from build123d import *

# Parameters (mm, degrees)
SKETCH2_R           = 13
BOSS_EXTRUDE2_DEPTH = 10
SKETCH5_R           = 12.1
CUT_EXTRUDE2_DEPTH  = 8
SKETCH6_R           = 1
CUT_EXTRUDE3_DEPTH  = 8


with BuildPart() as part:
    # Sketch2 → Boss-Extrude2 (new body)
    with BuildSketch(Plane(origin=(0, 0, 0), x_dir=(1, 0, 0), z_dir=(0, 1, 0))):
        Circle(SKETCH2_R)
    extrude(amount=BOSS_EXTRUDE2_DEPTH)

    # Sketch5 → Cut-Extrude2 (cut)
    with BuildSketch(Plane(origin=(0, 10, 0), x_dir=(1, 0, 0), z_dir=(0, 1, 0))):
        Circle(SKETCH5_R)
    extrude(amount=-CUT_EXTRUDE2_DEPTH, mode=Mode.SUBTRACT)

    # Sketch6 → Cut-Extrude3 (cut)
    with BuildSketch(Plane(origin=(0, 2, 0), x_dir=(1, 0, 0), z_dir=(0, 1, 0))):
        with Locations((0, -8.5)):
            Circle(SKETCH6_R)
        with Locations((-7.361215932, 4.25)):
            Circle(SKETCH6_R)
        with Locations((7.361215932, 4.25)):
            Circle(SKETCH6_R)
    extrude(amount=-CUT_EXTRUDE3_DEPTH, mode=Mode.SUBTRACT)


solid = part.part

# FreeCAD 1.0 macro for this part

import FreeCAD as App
import Part
import Sketcher

V = App.Vector
Q = App.Units.Quantity

doc = App.newDocument("Part")
body = doc.addObject("PartDesign::Body", "Body")

# Sketch on XZ plane
sketch1 = doc.addObject("Sketcher::SketchObject", "Sketch")
body.addObject(sketch1)
sketch1.AttachmentSupport = (doc.XZ_Plane, [""])
sketch1.MapMode = "FlatFace"
sketch1.addGeometry(Part.Circle(V(0, 0, 0), V(0, 0, 1), 13), False)
sketch1.addConstraint([
    Sketcher.Constraint("Coincident", 0, 3, -1, 1),
    Sketcher.Constraint("Diameter", 0, Q("26 mm")),
])
pad1 = doc.addObject("PartDesign::Pad", "Pad")
body.addObject(pad1)
pad1.Profile = sketch1
pad1.Length = 10
pad1.Reversed = True

# Sketch on XZ plane
sketch2 = doc.addObject("Sketcher::SketchObject", "Sketch001")
body.addObject(sketch2)
sketch2.AttachmentSupport = (doc.XZ_Plane, [""])
sketch2.MapMode = "FlatFace"
sketch2.AttachmentOffset = App.Placement(V(0, 0, -10), App.Rotation())
sketch2.addGeometry(Part.Circle(V(0, 0, 0), V(0, 0, 1), 12), False)
sketch2.addConstraint([
    Sketcher.Constraint("Coincident", 0, 3, -1, 1),
    Sketcher.Constraint("Diameter", 0, Q("24.2 mm")),
])
pocket1 = doc.addObject("PartDesign::Pocket", "Pocket")
body.addObject(pocket1)
pocket1.Profile = sketch2
pocket1.Length = 8
pocket1.Reversed = True

# Sketch on XZ plane
sketch3 = doc.addObject("Sketcher::SketchObject", "Sketch002")
body.addObject(sketch3)
sketch3.AttachmentSupport = (doc.XZ_Plane, [""])
sketch3.MapMode = "FlatFace"
sketch3.AttachmentOffset = App.Placement(V(0, 0, -2), App.Rotation())
sketch3.addGeometry([
    Part.Circle(V(0, 8.5, 0), V(0, 0, 1), 1),
    Part.Circle(V(-7.4, -4.2, 0), V(0, 0, 1), 1),
    Part.Circle(V(7.4, -4.2, 0), V(0, 0, 1), 1),
], False)
sketch3.addConstraint([
    Sketcher.Constraint("Equal", 0, 1),
    Sketcher.Constraint("Equal", 1, 2),
    Sketcher.Constraint("Symmetric", 1, 3, 2, 3, -2),
    Sketcher.Constraint("PointOnObject", 0, 3, -2),
    Sketcher.Constraint("Diameter", 0, Q("2 mm")),
    Sketcher.Constraint("DistanceY", -1, 1, 0, 3, Q("8.5 mm")),
    Sketcher.Constraint("DistanceY", 1, 3, -1, 1, Q("4.25 mm")),
    Sketcher.Constraint("DistanceX", 1, 3, 2, 3, Q("14.722432 mm")),
])
pocket2 = doc.addObject("PartDesign::Pocket", "Pocket001")
body.addObject(pocket2)
pocket2.Profile = sketch3
pocket2.Length = 8
pocket2.Reversed = True

doc.recompute()
